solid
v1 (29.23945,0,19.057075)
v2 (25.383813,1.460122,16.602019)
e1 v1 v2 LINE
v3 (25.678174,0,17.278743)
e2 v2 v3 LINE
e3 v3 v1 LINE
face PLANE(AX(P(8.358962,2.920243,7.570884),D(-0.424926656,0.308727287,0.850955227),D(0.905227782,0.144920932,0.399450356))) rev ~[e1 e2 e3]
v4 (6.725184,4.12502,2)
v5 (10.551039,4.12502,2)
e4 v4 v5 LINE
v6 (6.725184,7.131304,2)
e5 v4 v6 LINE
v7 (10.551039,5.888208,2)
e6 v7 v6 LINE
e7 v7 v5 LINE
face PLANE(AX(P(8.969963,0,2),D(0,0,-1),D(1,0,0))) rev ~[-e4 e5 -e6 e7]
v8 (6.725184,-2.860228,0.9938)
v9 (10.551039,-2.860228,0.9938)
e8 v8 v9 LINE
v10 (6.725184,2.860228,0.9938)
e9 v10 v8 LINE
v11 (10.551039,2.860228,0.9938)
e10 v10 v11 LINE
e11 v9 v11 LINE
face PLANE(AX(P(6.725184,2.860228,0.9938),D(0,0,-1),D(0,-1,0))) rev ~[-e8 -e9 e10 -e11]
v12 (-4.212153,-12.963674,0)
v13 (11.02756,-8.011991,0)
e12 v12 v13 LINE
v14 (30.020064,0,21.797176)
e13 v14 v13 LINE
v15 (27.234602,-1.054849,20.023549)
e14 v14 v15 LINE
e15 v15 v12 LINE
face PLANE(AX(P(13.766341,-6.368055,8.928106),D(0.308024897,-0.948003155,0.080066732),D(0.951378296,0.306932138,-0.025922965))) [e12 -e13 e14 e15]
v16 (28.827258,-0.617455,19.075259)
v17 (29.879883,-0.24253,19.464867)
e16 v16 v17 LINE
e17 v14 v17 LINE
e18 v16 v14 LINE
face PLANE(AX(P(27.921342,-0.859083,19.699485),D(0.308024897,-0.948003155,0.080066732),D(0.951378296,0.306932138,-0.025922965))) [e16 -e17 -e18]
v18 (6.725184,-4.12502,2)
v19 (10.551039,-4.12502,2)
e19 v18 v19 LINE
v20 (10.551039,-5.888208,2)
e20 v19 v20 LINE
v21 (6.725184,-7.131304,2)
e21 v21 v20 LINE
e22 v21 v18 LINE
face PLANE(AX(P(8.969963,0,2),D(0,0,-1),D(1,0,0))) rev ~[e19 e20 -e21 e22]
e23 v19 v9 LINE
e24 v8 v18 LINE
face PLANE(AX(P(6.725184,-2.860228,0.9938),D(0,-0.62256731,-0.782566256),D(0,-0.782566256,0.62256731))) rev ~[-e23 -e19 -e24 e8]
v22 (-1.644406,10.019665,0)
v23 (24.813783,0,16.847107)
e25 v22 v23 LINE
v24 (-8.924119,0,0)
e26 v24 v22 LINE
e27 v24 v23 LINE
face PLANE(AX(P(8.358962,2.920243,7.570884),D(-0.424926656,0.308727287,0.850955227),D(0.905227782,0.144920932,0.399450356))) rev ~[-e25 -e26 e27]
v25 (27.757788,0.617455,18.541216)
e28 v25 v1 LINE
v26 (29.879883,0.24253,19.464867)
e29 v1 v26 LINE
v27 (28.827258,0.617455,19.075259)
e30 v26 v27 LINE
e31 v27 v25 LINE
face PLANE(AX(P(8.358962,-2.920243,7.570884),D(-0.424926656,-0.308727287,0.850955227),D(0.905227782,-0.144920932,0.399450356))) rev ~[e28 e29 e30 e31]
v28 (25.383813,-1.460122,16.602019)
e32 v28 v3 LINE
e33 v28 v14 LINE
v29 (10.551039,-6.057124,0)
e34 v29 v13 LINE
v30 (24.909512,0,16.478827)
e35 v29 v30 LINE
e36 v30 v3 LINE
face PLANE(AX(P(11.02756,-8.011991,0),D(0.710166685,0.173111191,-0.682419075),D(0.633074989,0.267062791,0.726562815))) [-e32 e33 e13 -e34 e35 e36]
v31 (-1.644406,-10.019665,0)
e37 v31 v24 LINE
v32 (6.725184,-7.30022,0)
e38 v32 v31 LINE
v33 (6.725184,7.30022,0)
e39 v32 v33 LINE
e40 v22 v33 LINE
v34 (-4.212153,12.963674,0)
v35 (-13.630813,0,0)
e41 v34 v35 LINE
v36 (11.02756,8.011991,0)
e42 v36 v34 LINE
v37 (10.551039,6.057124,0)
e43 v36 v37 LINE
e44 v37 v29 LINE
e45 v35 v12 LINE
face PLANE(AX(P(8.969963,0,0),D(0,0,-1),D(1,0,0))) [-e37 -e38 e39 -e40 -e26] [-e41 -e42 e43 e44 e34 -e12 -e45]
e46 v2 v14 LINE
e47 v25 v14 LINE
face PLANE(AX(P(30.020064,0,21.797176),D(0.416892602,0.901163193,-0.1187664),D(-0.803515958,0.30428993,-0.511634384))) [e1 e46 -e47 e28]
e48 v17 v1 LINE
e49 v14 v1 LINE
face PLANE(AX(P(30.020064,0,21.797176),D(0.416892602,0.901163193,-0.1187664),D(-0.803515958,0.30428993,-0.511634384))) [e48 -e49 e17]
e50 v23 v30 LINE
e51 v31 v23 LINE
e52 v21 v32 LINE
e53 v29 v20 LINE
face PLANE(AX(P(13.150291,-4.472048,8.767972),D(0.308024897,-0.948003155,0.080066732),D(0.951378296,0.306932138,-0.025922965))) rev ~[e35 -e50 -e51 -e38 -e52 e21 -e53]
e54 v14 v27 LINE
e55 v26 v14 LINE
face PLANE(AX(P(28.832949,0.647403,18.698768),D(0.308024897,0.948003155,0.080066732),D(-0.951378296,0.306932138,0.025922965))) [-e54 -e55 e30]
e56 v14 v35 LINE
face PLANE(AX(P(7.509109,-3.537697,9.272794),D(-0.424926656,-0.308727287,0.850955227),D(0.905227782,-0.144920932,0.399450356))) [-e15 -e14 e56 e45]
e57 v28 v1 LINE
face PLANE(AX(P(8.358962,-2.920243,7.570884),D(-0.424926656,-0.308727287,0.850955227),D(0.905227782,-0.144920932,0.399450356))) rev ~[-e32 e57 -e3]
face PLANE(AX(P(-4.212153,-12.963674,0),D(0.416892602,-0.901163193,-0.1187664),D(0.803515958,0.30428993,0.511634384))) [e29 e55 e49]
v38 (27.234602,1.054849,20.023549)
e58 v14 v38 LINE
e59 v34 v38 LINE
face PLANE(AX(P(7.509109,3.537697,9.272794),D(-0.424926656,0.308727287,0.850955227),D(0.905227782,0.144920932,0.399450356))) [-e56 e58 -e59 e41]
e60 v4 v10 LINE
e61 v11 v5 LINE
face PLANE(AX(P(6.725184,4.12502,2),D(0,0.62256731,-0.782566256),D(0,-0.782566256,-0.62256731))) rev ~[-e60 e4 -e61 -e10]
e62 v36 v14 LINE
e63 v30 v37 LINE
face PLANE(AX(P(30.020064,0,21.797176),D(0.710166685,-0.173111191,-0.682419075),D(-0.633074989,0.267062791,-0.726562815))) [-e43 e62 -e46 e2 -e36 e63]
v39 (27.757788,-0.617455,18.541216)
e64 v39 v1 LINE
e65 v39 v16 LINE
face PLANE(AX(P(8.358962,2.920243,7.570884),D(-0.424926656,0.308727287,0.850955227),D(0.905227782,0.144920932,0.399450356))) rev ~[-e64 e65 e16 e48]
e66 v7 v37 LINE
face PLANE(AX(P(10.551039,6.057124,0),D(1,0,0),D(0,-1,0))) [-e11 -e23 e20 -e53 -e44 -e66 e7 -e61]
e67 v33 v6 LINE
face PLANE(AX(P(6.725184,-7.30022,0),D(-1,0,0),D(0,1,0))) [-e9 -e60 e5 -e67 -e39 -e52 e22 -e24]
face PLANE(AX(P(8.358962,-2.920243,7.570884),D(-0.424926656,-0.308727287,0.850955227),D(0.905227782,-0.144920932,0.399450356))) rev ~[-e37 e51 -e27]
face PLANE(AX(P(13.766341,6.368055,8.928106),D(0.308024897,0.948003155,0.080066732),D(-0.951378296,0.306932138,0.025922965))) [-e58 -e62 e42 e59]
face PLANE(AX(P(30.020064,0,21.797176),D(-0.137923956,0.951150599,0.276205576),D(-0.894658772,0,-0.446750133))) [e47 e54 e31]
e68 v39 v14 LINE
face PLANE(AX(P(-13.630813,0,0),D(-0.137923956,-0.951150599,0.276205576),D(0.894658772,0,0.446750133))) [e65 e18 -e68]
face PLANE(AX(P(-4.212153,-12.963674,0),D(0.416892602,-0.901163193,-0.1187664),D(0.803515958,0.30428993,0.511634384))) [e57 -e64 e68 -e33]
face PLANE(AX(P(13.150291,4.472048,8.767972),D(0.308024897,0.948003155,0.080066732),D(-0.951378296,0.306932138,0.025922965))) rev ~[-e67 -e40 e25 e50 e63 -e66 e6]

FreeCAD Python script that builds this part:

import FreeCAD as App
import Part
import Sketcher
from FreeCAD import Vector
Q = App.Units.Quantity


def add_polygon(sketch, points):
    """Adds a closed chain of lines whose ends are joined by coincident constraints."""
    first, n = sketch.GeometryCount, len(points)
    for a, b in zip(points, points[1:] + points[:1]):
        sketch.addGeometry(Part.LineSegment(App.Vector(*a, 0), App.Vector(*b, 0)), False)
    for i in range(n):
        sketch.addConstraint(Sketcher.Constraint("Coincident", first + i, 2, first + (i + 1) % n, 1))

doc = App.newDocument("Part")
body = doc.addObject("PartDesign::Body", "Body")

# Sketch on an angled plane
sketch1 = body.newObject("Sketcher::SketchObject", "Sketch")
sketch1.Placement = App.Placement(Vector(3.385858, 10.420598, 0.880106), App.Rotation(Vector(-0.951378296, 0.306932138, 0.025922965), Vector(-0.000000001, -0.08415867, 0.996452366), Vector(0.308024897, 0.948003155, 0.080066732), "ZXY"))
add_polygon(sketch1, [(8, -1), (-28, 22), (-8, -1)])  # lines 0-2
sketch1.addConstraint([
    Sketcher.Constraint("Distance", 1, 30.000402),
    Sketcher.Constraint("DistanceX", 0, 2, -1, 1, 27.99539),
    Sketcher.Constraint("DistanceY", -1, 1, 0, 2, 21.719848),
    Sketcher.Constraint("DistanceY", 1, 2, -1, 1, 0.674279),
    Sketcher.Constraint("DistanceX", -1, 1, 2, 2, 7.986319),
    Sketcher.Constraint("Distance", 0, 42.603033),
])
pad1 = body.newObject("PartDesign::Pad", "Pad")
pad1.Profile = sketch1
pad1.Length = 2
pad1.Reversed = True

# Sketch on an angled plane
sketch2 = body.newObject("Sketcher::SketchObject", "Sketch001")
sketch2.Placement = App.Placement(Vector(-2.461216, 1.788178, 4.928814), App.Rotation(Vector(0.905227782, 0.144920932, 0.399450356), Vector(0, 0.940045417, -0.341049284), Vector(-0.424926656, 0.308727287, 0.850955227), "ZXY"))
add_polygon(sketch2, [(36, -7), (-2, 12), (-12, 0)])  # lines 0-2
sketch2.addConstraint([
    Sketcher.Constraint("PointOnObject", 1, 2, -1),
    Sketcher.Constraint("Distance", 2, 48.790532),
    Sketcher.Constraint("DistanceX", 0, 2, -1, 1, 1.93425),
    Sketcher.Constraint("DistanceX", 1, 2, -1, 1, 12.338991),
    Sketcher.Constraint("DistanceY", 2, 2, -1, 1, 7.433911),
    Sketcher.Constraint("Distance", 0, 42.603033),
])
pad2 = body.newObject("PartDesign::Pad", "Pad001")
pad2.Profile = sketch2
pad2.Length = 2
pad2.Reversed = True

# Sketch on an angled plane
sketch3 = body.newObject("Sketcher::SketchObject", "Sketch002")
sketch3.Placement = App.Placement(Vector(-2.461216, -1.788178, 4.928814), App.Rotation(Vector(0.905227782, -0.144920932, 0.399450356), Vector(0, 0.940045417, 0.341049284), Vector(-0.424926656, -0.308727287, 0.850955227), "ZXY"))
add_polygon(sketch3, [(-2, -12), (36, 7), (-12, 0)])  # lines 0-2
sketch3.addConstraint([
    Sketcher.Constraint("PointOnObject", 1, 2, -1),
    Sketcher.Constraint("Distance", 1, 48.790532),
    Sketcher.Constraint("DistanceY", -1, 1, 0, 2, 7.433911),
    Sketcher.Constraint("DistanceX", 1, 2, -1, 1, 12.338991),
    Sketcher.Constraint("DistanceX", 2, 2, -1, 1, 1.93425),
    Sketcher.Constraint("Distance", 0, 42.603033),
])
pad3 = body.newObject("PartDesign::Pad", "Pad002")
pad3.Profile = sketch3
pad3.Length = 2
pad3.Reversed = True

# Sketch on an angled plane
sketch4 = body.newObject("Sketcher::SketchObject", "Sketch003")
sketch4.Placement = App.Placement(Vector(3.385858, -10.420598, 0.880106), App.Rotation(Vector(0.951378296, 0.306932138, -0.025922965), Vector(-0.000000001, 0.08415867, 0.996452366), Vector(0.308024897, -0.948003155, 0.080066732), "ZXY"))
add_polygon(sketch4, [(8, -1), (28, 22), (-8, -1)])  # lines 0-2
sketch4.addConstraint([
    Sketcher.Constraint("Distance", 0, 30.000402),
    Sketcher.Constraint("DistanceX", -1, 1, 0, 2, 27.99539),
    Sketcher.Constraint("DistanceY", -1, 1, 0, 2, 21.719848),
    Sketcher.Constraint("DistanceX", 1, 2, -1, 1, 7.986319),
    Sketcher.Constraint("DistanceY", 2, 2, -1, 1, 0.674279),
    Sketcher.Constraint("Distance", 1, 42.603033),
])
pad4 = body.newObject("PartDesign::Pad", "Pad003")
pad4.Profile = sketch4
pad4.Length = 2
pad4.Reversed = True

# Sketch on an angled plane
sketch5 = body.newObject("Sketcher::SketchObject", "Sketch004")
sketch5.Placement = App.Placement(Vector(3.385858, -10.420598, 0.880106), App.Rotation(Vector(0.951378296, 0.306932138, -0.025922965), Vector(-0.000000001, 0.08415867, 0.996452366), Vector(0.308024897, -0.948003155, 0.080066732), "ZXY"))
add_polygon(sketch5, [(22, 22), (22, 17), (30, 17), (30, 22)])  # lines 0-3
sketch5.addConstraint([
    Sketcher.Constraint("Vertical", 0),
    Sketcher.Constraint("Horizontal", 1),
    Sketcher.Constraint("Vertical", 2),
    Sketcher.Constraint("Horizontal", 3),
    Sketcher.Constraint("DistanceX", 1, 1, 1, 2, 8.485019),
    Sketcher.Constraint("DistanceY", 0, 2, 0, 1, 5.516268),
    Sketcher.Constraint("DistanceX", -1, 1, 0, 2, 21.5469),
    Sketcher.Constraint("DistanceY", -1, 1, 0, 2, 16.799165),
])
pocket1 = body.newObject("PartDesign::Pocket", "Pocket")
pocket1.Profile = sketch5
pocket1.Length = 25.4
pocket1.Reversed = True

# Sketch on an angled plane
sketch6 = body.newObject("Sketcher::SketchObject", "Sketch005")
sketch6.Placement = App.Placement(Vector(-2.461216, 1.788178, 4.928814), App.Rotation(Vector(0.905227782, 0.144920932, 0.399450356), Vector(0, 0.940045417, -0.341049284), Vector(-0.424926656, 0.308727287, 0.850955227), "ZXY"))
add_polygon(sketch6, [(21.3, -4.3), (21.3, -9), (43.6, -9), (43.6, -4.3)])  # lines 0-3
sketch6.addConstraint([
    Sketcher.Constraint("Vertical", 0),
    Sketcher.Constraint("Horizontal", 1),
    Sketcher.Constraint("Vertical", 2),
    Sketcher.Constraint("Horizontal", 3),
    Sketcher.Constraint("DistanceY", 0, 2, 0, 1, 4.648701),
    Sketcher.Constraint("DistanceX", 1, 1, 1, 2, 22.234289),
    Sketcher.Constraint("DistanceX", -1, 1, 0, 2, 21.335317),
    Sketcher.Constraint("DistanceY", 0, 2, -1, 1, 8.985597),
])
pocket2 = body.newObject("PartDesign::Pocket", "Pocket001")
pocket2.Profile = sketch6
pocket2.Length = 25.4
pocket2.Reversed = True

# Sketch on an angled plane
sketch7 = body.newObject("Sketcher::SketchObject", "Sketch006")
sketch7.Placement = App.Placement(Vector(-2.461216, -1.788178, 4.928814), App.Rotation(Vector(0.905227782, -0.144920932, 0.399450356), Vector(0, 0.940045417, 0.341049284), Vector(-0.424926656, -0.308727287, 0.850955227), "ZXY"))
add_polygon(sketch7, [(32, 9), (32, 2), (39, 2), (39, 9)])  # lines 0-3
sketch7.addConstraint([
    Sketcher.Constraint("Vertical", 0),
    Sketcher.Constraint("Horizontal", 1),
    Sketcher.Constraint("Vertical", 2),
    Sketcher.Constraint("Horizontal", 3),
    Sketcher.Constraint("DistanceX", 1, 1, 1, 2, 7.94499),
    Sketcher.Constraint("DistanceY", 0, 2, 0, 1, 7.288632),
    Sketcher.Constraint("DistanceY", -1, 1, 0, 2, 2.093528),
    Sketcher.Constraint("DistanceX", -1, 1, 0, 2, 31.544298),
])
pocket3 = body.newObject("PartDesign::Pocket", "Pocket002")
pocket3.Profile = sketch7
pocket3.Length = 25.4
pocket3.Reversed = True

# Sketch on an angled plane
sketch8 = body.newObject("Sketcher::SketchObject", "Sketch007")
sketch8.Placement = App.Placement(Vector(3.385858, 10.420598, 0.880106), App.Rotation(Vector(-0.951378296, 0.306932138, 0.025922965), Vector(-0.000000001, -0.08415867, 0.996452366), Vector(0.308024897, 0.948003155, 0.080066732), "ZXY"))
add_polygon(sketch8, [(-30, 24), (-30, 13), (-24, 13), (-24, 24)])  # lines 0-3
sketch8.addConstraint([
    Sketcher.Constraint("Vertical", 0),
    Sketcher.Constraint("Horizontal", 1),
    Sketcher.Constraint("Vertical", 2),
    Sketcher.Constraint("Horizontal", 3),
    Sketcher.Constraint("DistanceY", 0, 2, 0, 1, 11.3939),
    Sketcher.Constraint("DistanceX", 1, 1, 1, 2, 5.922558),
    Sketcher.Constraint("DistanceX", 0, 2, -1, 1, 29.708885),
    Sketcher.Constraint("DistanceY", -1, 1, 0, 2, 12.880997),
])
pocket4 = body.newObject("PartDesign::Pocket", "Pocket003")
pocket4.Profile = sketch8
pocket4.Length = 25.4
pocket4.Reversed = True

# Sketch on XY plane
sketch9 = body.newObject("Sketcher::SketchObject", "Sketch008")
sketch9.AttachmentSupport = (doc.getObject("XY_Plane"), [""])
sketch9.MapMode = "FlatFace"
add_polygon(sketch9, [(11, -8), (11, 8), (-4, 13), (-14, 0), (-4, -13)])  # lines 0-4
sketch9.addConstraint([
    Sketcher.Constraint("Vertical", 0),
    Sketcher.Constraint("Symmetric", 1, 2, 3, 2, -1),
    Sketcher.Constraint("PointOnObject", 2, 2, -1),
    Sketcher.Constraint("Equal", 1, 2),
    Sketcher.Constraint("Equal", 3, 4),
    Sketcher.Constraint("Angle", 1, Q("162 deg")),
    Sketcher.Constraint("Angle", 2, Q("-126 deg")),
    Sketcher.Constraint("DistanceY", 0, 1, 0, 2, 16.023982),
    Sketcher.Constraint("DistanceX", -1, 1, 0, 2, 11.02756),
])
pocket5 = body.newObject("PartDesign::Pocket", "Pocket004")
pocket5.Profile = sketch9
pocket5.Length = 25.4

# Sketch on XY plane
sketch10 = body.newObject("Sketcher::SketchObject", "Sketch009")
sketch10.AttachmentSupport = (doc.getObject("XY_Plane"), [""])
sketch10.MapMode = "FlatFace"
add_polygon(sketch10, [(6.7, 7.3), (10.6, 6.1), (10.6, -6.1), (6.7, -7.3)])  # lines 0-3
sketch10.addConstraint([
    Sketcher.Constraint("Vertical", 1),
    Sketcher.Constraint("Vertical", 3),
    Sketcher.Constraint("Equal", 0, 2),
    Sketcher.Constraint("Angle", 0, Q("-18 deg")),
    Sketcher.Constraint("DistanceY", 1, 2, 1, 1, 12.114249),
    Sketcher.Constraint("DistanceY", 3, 1, 3, 2, 14.60044),
    Sketcher.Constraint("DistanceX", -1, 1, 0, 2, 10.551039),
    Sketcher.Constraint("DistanceY", 2, 2, -1, 1, 7.30022),
])
pad5 = body.newObject("PartDesign::Pad", "Pad004")
pad5.Profile = sketch10
pad5.Length = 2

# Sketch on YZ plane
sketch11 = body.newObject("Sketcher::SketchObject", "Sketch010")
sketch11.AttachmentSupport = (doc.getObject("YZ_Plane"), [""])
sketch11.MapMode = "FlatFace"
sketch11.AttachmentOffset = App.Placement(Vector(0, 0, 6.725184), App.Rotation())
add_polygon(sketch11, [(-2.9, 1), (-4.1, 2), (-2.9, 2), (2.9, 2), (4.1, 2), (2.9, 1)])  # lines 0-5
sketch11.addConstraint([
    Sketcher.Constraint("Horizontal", 1),
    Sketcher.Constraint("Horizontal", 2),
    Sketcher.Constraint("Horizontal", 3),
    Sketcher.Constraint("Horizontal", 5),
    Sketcher.Constraint("Vertical", 2, 2, 4, 2),
    Sketcher.Constraint("Vertical", 1, 2, 5, 2),
    Sketcher.Constraint("Equal", 1, 3),
    Sketcher.Constraint("DistanceY", -1, 1, 0, 2, 2.0),
    Sketcher.Constraint("DistanceY", -1, 1, 4, 2, 0.9938),
    Sketcher.Constraint("Distance", 0, 1.616211),
    Sketcher.Constraint("DistanceX", 2, 1, 2, 2, 5.720457),
    Sketcher.Constraint("DistanceX", 0, 2, -1, 1, 4.12502),
])
pocket6 = body.newObject("PartDesign::Pocket", "Pocket005")
pocket6.Profile = sketch11
pocket6.Length = 25.4
pocket6.Reversed = True

doc.recompute()
